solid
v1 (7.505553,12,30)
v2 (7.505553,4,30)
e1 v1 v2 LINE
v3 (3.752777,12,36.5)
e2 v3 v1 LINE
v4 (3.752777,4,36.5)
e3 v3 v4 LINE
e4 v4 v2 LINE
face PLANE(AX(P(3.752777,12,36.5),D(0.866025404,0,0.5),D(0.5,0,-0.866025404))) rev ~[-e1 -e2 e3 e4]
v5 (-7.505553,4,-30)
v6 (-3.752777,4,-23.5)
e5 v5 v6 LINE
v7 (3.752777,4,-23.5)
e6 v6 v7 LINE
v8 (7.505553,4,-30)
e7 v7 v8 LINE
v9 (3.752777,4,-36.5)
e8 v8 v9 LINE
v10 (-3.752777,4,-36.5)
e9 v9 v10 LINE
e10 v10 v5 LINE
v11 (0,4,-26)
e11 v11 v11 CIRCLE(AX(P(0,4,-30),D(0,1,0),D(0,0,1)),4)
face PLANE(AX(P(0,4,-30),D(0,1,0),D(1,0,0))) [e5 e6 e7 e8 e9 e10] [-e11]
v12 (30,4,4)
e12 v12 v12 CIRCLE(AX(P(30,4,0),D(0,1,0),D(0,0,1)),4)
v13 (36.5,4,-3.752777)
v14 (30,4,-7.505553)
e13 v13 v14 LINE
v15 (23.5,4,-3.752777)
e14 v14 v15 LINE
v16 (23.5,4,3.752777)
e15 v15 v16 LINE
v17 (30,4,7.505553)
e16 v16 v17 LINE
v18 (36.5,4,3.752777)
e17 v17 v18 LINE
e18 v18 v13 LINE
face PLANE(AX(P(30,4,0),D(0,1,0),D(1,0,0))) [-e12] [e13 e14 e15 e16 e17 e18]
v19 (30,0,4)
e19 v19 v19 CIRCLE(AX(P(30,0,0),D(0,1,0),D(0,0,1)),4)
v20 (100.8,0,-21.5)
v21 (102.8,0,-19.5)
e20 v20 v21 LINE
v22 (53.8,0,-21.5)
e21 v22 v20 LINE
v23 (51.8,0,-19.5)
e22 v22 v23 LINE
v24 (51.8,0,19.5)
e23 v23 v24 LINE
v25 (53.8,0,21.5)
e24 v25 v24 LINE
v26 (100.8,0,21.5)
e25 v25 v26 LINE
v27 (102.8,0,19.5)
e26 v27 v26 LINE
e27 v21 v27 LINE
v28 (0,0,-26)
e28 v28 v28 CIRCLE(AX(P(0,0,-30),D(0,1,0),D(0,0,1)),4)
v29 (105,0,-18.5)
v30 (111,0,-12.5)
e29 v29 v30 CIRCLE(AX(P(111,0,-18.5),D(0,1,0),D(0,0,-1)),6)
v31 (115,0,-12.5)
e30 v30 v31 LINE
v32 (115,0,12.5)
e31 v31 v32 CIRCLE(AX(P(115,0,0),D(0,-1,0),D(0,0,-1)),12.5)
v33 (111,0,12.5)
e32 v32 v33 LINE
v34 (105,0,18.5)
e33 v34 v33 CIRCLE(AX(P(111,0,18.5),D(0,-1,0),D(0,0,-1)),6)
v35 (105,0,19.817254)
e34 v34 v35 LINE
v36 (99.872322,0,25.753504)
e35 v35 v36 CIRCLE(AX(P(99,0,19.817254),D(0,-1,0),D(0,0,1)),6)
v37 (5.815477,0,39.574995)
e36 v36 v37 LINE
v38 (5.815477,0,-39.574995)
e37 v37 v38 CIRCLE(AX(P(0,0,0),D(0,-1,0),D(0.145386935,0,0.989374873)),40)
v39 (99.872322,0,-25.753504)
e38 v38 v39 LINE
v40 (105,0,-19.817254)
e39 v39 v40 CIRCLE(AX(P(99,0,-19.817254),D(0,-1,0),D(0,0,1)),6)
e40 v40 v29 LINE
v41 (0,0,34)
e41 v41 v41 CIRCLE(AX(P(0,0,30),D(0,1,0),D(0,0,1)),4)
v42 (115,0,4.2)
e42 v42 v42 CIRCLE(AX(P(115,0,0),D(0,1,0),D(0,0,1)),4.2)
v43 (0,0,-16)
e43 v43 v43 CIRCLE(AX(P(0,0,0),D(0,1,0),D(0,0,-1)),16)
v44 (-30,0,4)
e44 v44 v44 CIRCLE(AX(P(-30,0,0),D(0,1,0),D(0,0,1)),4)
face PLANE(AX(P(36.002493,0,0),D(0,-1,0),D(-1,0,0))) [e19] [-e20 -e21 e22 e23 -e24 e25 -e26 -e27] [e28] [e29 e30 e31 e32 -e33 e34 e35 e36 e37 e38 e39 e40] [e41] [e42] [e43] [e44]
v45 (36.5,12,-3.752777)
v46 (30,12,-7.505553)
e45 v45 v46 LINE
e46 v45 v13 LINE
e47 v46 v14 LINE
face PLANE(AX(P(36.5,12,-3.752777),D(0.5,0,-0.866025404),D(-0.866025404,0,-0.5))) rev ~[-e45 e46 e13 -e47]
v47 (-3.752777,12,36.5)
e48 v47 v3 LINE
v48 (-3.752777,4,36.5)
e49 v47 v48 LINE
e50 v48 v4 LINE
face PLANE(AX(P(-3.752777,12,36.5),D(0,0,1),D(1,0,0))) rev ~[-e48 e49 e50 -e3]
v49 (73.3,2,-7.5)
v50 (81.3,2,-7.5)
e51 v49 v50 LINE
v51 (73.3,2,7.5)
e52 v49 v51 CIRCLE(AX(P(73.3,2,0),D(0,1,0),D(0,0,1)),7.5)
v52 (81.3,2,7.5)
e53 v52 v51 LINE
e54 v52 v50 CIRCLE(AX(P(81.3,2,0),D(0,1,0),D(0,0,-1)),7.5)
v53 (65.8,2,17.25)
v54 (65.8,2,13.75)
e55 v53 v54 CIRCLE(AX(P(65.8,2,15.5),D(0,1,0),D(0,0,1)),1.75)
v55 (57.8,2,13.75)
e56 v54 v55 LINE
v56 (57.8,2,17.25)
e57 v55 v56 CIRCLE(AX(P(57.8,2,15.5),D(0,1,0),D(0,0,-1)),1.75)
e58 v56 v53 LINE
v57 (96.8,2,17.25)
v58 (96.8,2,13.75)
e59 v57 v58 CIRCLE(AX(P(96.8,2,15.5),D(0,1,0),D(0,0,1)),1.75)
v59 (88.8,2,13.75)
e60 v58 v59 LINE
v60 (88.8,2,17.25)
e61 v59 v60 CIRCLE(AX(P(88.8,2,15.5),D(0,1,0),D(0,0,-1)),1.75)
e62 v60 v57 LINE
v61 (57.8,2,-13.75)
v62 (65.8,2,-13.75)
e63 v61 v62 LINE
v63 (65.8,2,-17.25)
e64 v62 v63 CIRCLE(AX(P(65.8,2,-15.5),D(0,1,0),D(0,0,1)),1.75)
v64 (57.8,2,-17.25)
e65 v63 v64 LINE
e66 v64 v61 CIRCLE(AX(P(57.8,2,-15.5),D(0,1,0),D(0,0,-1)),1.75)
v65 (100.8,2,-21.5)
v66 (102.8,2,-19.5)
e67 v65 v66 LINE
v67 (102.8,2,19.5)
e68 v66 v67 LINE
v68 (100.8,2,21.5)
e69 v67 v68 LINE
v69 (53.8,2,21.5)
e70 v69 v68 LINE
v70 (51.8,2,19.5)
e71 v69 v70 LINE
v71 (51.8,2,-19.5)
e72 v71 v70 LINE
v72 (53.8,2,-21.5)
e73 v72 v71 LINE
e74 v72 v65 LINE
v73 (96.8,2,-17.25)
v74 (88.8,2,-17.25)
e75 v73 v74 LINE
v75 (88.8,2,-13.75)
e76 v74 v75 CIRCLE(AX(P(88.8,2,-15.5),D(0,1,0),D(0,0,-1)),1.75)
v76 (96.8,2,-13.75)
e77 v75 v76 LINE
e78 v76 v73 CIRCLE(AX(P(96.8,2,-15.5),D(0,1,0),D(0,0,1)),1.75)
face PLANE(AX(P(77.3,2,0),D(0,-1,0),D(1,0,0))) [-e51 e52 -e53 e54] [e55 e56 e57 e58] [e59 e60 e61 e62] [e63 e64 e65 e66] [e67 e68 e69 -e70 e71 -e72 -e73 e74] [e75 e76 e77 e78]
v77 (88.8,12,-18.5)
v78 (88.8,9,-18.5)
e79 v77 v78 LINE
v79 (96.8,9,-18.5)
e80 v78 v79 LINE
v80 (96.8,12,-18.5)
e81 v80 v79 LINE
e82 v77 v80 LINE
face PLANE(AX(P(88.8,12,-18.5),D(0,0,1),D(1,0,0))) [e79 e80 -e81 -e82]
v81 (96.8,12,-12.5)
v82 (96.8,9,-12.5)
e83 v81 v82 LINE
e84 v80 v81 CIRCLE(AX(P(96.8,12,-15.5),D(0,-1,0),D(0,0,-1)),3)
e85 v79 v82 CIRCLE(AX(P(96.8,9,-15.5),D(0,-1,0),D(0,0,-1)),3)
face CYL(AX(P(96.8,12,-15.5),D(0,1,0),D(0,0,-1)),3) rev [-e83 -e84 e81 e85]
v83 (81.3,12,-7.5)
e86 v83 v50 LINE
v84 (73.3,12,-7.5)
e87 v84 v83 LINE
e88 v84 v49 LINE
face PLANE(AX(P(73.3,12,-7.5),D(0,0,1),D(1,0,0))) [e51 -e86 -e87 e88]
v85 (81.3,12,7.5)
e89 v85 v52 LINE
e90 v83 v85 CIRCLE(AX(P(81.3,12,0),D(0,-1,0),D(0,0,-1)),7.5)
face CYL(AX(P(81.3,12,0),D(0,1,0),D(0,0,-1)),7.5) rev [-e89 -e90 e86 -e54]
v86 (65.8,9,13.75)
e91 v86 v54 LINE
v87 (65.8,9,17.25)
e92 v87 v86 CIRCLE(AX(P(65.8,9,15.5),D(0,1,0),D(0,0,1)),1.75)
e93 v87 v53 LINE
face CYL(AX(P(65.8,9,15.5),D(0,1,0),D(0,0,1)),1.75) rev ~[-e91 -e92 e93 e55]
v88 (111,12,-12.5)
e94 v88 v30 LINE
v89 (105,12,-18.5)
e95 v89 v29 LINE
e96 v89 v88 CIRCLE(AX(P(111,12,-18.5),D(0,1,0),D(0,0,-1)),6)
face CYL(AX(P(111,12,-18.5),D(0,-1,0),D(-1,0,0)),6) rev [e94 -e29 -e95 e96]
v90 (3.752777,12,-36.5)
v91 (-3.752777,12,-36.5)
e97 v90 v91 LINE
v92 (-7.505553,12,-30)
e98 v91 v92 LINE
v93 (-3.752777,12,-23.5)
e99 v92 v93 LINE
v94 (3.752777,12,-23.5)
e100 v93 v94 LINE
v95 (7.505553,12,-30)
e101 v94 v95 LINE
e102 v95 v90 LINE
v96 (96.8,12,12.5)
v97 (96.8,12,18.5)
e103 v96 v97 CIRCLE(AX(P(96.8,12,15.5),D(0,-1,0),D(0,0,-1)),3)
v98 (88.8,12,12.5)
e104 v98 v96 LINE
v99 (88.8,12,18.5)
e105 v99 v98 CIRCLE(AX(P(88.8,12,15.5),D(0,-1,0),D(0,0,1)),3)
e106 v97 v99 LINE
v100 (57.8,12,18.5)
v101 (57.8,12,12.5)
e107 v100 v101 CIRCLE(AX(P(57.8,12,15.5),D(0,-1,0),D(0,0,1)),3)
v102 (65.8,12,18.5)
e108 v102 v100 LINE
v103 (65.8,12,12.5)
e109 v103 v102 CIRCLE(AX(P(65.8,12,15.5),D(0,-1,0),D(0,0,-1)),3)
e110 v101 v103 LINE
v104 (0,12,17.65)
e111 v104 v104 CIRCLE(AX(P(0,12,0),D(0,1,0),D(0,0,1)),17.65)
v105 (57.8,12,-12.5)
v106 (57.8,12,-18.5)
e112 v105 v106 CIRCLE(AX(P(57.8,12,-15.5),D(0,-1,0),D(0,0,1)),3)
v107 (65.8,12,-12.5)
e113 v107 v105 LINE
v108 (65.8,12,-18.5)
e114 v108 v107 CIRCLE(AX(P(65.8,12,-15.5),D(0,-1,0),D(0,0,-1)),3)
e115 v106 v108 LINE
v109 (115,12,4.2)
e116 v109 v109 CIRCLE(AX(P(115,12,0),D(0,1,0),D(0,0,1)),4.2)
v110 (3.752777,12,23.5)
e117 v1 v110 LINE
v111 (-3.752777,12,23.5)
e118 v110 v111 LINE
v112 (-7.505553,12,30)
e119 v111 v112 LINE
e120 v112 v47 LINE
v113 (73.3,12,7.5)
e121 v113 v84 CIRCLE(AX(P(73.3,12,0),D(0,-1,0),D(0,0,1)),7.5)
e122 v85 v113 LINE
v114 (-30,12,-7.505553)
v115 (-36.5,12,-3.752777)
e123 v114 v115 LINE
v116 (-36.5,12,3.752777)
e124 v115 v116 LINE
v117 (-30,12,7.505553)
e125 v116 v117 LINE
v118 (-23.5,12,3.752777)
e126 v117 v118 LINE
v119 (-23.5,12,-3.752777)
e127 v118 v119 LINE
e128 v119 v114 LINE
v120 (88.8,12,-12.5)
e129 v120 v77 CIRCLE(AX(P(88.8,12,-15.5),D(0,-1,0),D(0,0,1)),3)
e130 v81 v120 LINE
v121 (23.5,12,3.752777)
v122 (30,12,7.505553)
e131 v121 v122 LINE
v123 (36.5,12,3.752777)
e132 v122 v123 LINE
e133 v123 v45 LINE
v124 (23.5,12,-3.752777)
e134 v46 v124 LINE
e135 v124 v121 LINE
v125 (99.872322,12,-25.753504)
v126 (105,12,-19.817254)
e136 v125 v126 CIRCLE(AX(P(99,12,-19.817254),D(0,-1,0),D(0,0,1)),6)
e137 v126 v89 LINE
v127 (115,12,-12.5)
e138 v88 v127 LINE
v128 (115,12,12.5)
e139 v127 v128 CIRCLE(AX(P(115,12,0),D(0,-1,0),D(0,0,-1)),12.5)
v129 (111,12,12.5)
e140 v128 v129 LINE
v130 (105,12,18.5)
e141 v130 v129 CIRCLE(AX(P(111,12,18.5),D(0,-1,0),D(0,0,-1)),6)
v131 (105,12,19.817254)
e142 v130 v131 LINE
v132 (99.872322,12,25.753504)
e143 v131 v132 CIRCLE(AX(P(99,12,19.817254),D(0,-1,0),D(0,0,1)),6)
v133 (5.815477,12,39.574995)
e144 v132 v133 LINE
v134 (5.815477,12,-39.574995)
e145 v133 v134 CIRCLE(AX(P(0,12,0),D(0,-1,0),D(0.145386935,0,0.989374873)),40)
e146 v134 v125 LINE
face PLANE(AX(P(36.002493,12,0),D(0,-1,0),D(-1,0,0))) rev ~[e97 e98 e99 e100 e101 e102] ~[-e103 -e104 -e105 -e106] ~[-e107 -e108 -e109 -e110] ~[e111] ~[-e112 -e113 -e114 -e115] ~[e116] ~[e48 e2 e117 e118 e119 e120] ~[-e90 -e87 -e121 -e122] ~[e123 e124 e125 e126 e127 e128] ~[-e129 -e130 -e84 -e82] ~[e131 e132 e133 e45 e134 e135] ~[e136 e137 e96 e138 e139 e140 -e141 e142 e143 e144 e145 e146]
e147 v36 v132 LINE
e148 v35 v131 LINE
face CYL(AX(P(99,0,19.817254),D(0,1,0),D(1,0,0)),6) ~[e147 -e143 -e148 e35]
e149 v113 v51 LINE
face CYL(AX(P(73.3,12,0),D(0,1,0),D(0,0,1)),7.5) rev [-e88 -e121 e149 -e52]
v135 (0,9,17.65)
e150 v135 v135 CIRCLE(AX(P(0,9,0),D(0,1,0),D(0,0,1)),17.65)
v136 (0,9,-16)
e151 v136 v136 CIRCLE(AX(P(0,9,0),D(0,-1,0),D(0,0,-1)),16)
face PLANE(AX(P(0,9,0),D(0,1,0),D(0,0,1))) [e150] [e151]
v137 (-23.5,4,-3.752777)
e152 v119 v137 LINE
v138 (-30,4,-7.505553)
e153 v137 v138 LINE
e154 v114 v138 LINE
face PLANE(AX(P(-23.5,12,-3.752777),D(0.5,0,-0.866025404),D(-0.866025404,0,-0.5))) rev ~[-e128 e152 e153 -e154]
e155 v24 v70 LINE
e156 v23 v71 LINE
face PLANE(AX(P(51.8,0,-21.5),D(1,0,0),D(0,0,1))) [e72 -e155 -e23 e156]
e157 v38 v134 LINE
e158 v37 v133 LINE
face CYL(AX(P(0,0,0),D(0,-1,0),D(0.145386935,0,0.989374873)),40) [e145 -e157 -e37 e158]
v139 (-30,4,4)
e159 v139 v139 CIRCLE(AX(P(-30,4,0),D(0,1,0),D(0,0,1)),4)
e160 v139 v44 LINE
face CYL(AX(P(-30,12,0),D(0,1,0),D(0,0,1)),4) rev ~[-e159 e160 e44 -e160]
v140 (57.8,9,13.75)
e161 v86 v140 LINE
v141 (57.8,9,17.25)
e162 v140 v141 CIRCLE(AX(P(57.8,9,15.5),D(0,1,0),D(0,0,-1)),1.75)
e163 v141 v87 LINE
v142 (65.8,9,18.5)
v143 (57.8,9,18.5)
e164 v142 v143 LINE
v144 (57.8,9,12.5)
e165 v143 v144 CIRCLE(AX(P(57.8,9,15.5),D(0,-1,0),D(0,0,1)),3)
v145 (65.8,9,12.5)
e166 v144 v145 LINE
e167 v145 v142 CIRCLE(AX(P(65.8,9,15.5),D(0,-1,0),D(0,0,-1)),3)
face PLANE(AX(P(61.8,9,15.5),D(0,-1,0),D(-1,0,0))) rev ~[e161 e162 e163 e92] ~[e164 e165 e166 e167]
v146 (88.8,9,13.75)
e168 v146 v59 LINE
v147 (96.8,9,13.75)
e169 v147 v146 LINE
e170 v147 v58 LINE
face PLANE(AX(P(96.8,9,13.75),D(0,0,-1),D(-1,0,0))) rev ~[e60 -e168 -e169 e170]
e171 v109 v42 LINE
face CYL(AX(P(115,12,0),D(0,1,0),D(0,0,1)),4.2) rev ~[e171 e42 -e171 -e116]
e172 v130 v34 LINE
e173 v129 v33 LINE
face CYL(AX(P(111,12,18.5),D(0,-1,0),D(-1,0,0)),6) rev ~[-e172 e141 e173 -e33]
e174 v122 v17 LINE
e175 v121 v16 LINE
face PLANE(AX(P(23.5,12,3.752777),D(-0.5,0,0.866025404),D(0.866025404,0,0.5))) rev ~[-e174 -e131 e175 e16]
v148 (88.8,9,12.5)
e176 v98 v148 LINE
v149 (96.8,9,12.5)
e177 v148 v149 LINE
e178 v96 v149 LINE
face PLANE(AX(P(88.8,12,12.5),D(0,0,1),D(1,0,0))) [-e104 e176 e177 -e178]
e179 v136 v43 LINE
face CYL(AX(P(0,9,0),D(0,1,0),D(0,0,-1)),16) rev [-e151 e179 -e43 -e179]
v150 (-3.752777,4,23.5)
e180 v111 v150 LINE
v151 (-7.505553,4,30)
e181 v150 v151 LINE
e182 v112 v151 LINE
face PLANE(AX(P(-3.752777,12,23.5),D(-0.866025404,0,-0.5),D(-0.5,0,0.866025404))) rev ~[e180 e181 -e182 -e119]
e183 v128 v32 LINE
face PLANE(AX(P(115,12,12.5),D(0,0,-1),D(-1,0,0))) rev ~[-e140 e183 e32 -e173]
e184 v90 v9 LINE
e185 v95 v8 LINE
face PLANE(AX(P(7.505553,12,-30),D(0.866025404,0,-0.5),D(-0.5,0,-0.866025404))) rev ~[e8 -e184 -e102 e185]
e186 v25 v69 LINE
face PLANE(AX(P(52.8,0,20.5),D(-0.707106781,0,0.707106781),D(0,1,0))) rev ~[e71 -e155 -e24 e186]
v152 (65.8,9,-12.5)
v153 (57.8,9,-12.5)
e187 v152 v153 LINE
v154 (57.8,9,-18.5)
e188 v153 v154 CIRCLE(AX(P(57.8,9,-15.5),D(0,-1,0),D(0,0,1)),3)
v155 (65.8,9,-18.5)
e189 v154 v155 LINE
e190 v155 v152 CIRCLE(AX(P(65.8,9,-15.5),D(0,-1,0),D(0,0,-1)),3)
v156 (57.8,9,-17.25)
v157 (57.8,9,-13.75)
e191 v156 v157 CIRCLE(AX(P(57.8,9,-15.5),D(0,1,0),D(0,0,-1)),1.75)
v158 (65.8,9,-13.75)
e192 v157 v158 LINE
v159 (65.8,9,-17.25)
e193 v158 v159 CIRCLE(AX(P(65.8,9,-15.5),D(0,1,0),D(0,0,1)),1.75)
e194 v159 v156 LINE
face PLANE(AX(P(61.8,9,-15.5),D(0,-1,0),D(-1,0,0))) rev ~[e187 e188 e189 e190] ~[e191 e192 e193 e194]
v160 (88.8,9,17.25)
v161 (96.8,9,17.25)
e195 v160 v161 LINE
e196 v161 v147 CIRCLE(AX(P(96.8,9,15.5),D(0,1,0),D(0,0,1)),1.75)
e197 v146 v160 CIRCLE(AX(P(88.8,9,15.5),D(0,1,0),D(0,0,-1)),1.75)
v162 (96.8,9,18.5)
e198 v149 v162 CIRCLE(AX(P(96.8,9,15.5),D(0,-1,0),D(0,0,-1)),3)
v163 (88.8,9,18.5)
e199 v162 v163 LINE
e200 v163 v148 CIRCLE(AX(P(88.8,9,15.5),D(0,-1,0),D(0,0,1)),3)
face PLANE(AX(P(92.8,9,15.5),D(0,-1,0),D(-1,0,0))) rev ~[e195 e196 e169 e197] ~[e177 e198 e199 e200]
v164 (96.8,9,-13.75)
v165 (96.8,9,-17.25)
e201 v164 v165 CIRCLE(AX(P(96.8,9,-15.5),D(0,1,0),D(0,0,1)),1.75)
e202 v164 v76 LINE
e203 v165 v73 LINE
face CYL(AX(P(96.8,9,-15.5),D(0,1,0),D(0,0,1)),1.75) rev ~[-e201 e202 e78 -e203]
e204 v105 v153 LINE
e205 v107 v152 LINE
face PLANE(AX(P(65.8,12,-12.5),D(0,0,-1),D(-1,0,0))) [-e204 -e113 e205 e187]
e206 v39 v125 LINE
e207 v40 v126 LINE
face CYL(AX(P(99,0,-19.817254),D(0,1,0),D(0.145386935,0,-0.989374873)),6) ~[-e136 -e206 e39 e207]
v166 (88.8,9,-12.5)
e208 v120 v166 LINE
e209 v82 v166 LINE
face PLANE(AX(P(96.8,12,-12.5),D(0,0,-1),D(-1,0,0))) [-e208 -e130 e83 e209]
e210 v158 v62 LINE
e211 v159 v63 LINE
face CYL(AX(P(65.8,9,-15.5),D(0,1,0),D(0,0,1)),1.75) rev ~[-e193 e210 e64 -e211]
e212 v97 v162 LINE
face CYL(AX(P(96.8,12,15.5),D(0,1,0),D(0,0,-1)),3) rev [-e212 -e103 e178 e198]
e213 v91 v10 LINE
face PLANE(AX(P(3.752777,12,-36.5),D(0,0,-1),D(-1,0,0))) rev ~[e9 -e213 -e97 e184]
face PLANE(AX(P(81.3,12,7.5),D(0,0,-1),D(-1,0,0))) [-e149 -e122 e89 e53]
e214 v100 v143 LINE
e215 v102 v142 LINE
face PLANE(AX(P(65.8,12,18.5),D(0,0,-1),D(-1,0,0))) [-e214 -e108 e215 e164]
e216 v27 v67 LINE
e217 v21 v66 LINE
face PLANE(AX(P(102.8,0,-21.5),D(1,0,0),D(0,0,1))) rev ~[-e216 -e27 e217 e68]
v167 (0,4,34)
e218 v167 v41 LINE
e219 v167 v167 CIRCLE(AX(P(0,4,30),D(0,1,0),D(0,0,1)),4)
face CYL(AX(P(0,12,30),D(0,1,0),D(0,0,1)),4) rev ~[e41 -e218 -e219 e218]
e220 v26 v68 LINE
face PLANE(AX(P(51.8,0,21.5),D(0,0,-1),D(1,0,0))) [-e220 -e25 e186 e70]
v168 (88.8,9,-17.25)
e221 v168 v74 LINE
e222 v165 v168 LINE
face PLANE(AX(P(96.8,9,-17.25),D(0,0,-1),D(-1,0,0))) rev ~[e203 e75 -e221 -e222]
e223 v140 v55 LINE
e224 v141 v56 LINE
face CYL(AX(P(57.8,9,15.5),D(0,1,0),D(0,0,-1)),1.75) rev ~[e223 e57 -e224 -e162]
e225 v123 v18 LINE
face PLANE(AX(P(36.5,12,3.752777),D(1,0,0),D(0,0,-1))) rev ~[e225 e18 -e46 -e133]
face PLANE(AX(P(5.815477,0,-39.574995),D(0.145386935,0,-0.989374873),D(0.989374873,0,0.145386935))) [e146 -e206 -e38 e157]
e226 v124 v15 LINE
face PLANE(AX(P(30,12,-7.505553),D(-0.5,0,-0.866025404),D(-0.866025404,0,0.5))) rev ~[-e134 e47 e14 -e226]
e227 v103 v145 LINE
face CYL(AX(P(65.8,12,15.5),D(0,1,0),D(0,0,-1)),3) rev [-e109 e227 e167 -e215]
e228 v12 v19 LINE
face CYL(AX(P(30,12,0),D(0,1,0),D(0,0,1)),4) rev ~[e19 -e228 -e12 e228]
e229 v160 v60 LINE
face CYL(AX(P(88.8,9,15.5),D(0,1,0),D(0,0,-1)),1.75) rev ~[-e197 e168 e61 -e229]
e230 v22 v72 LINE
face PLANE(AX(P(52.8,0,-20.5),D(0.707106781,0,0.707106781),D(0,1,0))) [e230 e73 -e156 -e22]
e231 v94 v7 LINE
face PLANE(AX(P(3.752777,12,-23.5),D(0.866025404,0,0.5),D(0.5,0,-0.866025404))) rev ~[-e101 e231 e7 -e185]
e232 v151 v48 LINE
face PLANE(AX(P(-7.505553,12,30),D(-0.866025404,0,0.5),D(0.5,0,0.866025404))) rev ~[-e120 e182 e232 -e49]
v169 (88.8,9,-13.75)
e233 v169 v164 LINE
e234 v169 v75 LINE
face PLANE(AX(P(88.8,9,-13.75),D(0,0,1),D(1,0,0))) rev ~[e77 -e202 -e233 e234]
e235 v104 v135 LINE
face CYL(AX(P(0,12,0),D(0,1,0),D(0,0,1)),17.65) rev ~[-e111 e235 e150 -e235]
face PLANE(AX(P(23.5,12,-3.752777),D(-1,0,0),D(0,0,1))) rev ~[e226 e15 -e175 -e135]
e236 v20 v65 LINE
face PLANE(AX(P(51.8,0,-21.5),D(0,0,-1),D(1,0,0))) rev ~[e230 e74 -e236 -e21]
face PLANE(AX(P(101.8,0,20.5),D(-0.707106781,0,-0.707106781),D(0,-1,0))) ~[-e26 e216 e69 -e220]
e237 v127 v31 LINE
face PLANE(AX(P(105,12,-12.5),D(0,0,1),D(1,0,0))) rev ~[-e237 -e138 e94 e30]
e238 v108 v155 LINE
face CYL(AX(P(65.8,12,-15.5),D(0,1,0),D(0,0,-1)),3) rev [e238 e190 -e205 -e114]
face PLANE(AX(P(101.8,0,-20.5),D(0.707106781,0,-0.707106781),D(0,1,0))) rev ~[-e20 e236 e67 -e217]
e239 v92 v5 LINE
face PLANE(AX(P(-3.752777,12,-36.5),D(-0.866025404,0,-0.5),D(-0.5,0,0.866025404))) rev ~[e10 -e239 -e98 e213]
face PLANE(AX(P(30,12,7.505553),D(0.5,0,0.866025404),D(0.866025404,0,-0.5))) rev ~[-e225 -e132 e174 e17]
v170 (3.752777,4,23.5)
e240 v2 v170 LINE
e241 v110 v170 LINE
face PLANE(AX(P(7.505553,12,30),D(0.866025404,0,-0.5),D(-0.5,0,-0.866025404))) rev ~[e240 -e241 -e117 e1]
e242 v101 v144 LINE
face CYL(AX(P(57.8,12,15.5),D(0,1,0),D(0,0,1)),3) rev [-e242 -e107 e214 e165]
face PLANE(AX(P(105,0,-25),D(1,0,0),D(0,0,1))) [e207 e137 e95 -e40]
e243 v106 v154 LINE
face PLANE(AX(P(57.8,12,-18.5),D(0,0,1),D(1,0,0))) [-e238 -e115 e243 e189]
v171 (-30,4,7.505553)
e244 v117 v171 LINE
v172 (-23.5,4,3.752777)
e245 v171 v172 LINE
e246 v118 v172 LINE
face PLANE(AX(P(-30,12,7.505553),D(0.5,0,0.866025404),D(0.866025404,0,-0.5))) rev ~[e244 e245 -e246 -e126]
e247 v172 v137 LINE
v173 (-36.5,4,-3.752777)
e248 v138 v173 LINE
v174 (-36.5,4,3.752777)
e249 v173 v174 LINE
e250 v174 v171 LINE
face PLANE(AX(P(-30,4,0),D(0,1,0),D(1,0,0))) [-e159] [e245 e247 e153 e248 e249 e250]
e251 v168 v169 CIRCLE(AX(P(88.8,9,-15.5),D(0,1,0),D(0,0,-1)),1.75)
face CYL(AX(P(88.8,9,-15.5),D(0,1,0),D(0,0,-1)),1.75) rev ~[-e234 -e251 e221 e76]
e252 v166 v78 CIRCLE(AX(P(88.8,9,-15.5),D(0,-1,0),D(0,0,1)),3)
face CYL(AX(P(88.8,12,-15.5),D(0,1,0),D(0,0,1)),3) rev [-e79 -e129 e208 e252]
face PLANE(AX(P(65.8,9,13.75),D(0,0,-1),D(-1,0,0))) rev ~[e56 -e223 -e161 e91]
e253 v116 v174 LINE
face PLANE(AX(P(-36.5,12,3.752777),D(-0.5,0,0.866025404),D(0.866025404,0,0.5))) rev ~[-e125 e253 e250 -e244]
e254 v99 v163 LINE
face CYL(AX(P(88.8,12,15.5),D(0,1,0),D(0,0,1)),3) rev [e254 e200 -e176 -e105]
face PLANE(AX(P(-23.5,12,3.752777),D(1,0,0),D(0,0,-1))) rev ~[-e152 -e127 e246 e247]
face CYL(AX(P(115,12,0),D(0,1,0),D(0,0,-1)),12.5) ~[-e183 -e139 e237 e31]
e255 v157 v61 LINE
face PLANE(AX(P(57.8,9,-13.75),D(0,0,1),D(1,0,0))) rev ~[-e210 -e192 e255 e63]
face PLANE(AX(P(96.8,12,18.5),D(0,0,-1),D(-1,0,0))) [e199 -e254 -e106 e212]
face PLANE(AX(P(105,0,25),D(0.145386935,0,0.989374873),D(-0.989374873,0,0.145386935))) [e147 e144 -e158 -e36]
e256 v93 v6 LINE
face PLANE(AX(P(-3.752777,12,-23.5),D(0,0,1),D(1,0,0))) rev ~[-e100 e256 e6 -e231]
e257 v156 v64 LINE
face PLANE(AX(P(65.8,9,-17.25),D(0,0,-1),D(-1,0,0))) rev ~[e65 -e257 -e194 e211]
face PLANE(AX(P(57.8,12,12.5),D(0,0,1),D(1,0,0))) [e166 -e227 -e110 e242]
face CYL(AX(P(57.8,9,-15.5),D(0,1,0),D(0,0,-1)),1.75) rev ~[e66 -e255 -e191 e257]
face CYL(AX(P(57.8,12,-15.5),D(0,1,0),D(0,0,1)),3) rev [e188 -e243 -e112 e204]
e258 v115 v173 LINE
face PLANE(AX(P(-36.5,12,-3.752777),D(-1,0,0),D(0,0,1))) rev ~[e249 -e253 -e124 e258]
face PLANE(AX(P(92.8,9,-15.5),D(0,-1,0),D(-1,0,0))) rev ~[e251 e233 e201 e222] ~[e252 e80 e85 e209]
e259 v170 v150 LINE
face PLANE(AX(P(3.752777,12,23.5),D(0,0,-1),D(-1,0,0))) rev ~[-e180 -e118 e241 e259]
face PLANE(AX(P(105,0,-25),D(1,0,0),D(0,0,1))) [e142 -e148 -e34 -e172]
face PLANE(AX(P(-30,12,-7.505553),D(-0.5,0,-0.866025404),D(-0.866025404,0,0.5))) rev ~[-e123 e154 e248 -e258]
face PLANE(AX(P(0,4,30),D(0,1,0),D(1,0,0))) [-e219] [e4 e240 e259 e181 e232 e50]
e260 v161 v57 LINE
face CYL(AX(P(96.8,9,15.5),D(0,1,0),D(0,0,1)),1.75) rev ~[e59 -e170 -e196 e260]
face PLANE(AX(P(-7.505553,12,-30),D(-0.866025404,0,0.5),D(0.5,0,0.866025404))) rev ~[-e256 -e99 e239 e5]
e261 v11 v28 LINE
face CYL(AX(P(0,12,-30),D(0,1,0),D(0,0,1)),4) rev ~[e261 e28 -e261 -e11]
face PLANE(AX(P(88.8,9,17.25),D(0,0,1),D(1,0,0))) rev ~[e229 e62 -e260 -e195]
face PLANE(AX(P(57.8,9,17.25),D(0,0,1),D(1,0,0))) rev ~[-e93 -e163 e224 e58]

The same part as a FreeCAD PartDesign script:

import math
import FreeCAD as App
import Part
import Sketcher

V = App.Vector
Q = App.Units.Quantity


def edges_at(feature, points):
    """Names of the edges that pass closest to the given points."""
    edges = feature.Shape.Edges
    near = lambda p: min(range(len(edges)), key=lambda i: edges[i].distToShape(Part.Vertex(*p))[0])
    return sorted({f"Edge{near(p) + 1}" for p in points})

doc = App.newDocument("Part")
body = doc.addObject("PartDesign::Body", "Body")

# Sketch on XZ plane
sketch1 = doc.addObject("Sketcher::SketchObject", "Sketch")
body.addObject(sketch1)
sketch1.AttachmentSupport = (doc.XZ_Plane, [""])
sketch1.MapMode = "FlatFace"
sketch1.addGeometry(Part.LineSegment(V(105, -25, 0), V(6, -40, 0)), False)
sketch1.addGeometry(Part.ArcOfCircle(Part.Circle(V(0, 0, 0), V(0, 0, 1), 40), math.radians(82), math.radians(278)), False)
sketch1.addGeometry(Part.LineSegment(V(6, 40, 0), V(105, 25, 0)), False)
sketch1.addGeometry(Part.LineSegment(V(105, 25, 0), V(105, -25, 0)), False)
sketch1.addGeometry(Part.Circle(V(0, 0, 0), V(0, 0, 1), 10), False)
sketch1.addConstraint(Sketcher.Constraint("Tangent", 0, 2, 1, 2))
sketch1.addConstraint(Sketcher.Constraint("Tangent", 1, 1, 2, 1))
sketch1.addConstraint(Sketcher.Constraint("Coincident", 2, 2, 3, 1))
sketch1.addConstraint(Sketcher.Constraint("Coincident", 3, 2, 0, 1))
sketch1.addConstraint(Sketcher.Constraint("Vertical", 3))
sketch1.addConstraint(Sketcher.Constraint("Coincident", 1, 3, -1, 1))
sketch1.addConstraint(Sketcher.Constraint("Coincident", 4, 3, -1, 1))
sketch1.addConstraint(Sketcher.Constraint("Vertical", 0, 2, 1, 1))
sketch1.addConstraint(Sketcher.Constraint("Diameter", 4, 20.0))
sketch1.addConstraint(Sketcher.Constraint("Radius", 1, 40.0))
sketch1.addConstraint(Sketcher.Constraint("DistanceY", 3, 2, 3, 1, 50.0))
sketch1.addConstraint(Sketcher.Constraint("DistanceX", -1, 1, 2, 2, 105.0))
pad1 = doc.addObject("PartDesign::Pad", "Pad")
body.addObject(pad1)
pad1.Profile = sketch1
pad1.Length = 12
pad1.Reversed = True

# Sketch on XZ plane
sketch2 = doc.addObject("Sketcher::SketchObject", "Sketch001")
body.addObject(sketch2)
sketch2.AttachmentSupport = (doc.XZ_Plane, [""])
sketch2.MapMode = "FlatFace"
sketch2.AttachmentOffset = App.Placement(V(0, 0, -12), App.Rotation())
sketch2.addGeometry(Part.Circle(V(0, 0, 0), V(0, 0, 1), 18), False)
sketch2.addConstraint(Sketcher.Constraint("Coincident", 0, 3, -1, 1))
sketch2.addConstraint(Sketcher.Constraint("Diameter", 0, 35.3))
pocket1 = doc.addObject("PartDesign::Pocket", "Pocket")
body.addObject(pocket1)
pocket1.Profile = sketch2
pocket1.Length = 3
pocket1.Reversed = True

# Sketch on XZ plane
sketch3 = doc.addObject("Sketcher::SketchObject", "Sketch002")
body.addObject(sketch3)
sketch3.AttachmentSupport = (doc.XZ_Plane, [""])
sketch3.MapMode = "FlatFace"
sketch3.AttachmentOffset = App.Placement(V(0, 0, -12), App.Rotation())
sketch3.addGeometry(Part.LineSegment(V(81, -8, 0), V(73, -8, 0)), False)
sketch3.addGeometry(Part.ArcOfCircle(Part.Circle(V(73, 0, 0), V(0, 0, 1), 8), math.radians(90), math.radians(270)), False)
sketch3.addGeometry(Part.LineSegment(V(73, 8, 0), V(81, 8, 0)), False)
sketch3.addGeometry(Part.ArcOfCircle(Part.Circle(V(81, 0, 0), V(0, 0, 1), 8), math.radians(-90), math.radians(90)), False)
sketch3.addConstraint(Sketcher.Constraint("Tangent", 0, 2, 1, 2))
sketch3.addConstraint(Sketcher.Constraint("Tangent", 1, 1, 2, 1))
sketch3.addConstraint(Sketcher.Constraint("Tangent", 2, 2, 3, 2))
sketch3.addConstraint(Sketcher.Constraint("Tangent", 3, 1, 0, 1))
sketch3.addConstraint(Sketcher.Constraint("Horizontal", 0))
sketch3.addConstraint(Sketcher.Constraint("Horizontal", 2))
sketch3.addConstraint(Sketcher.Constraint("PointOnObject", 1, 3, -1))
sketch3.addConstraint(Sketcher.Constraint("Radius", 1, 7.5))
sketch3.addConstraint(Sketcher.Constraint("DistanceX", 0, 2, 0, 1, 8.0))
sketch3.addConstraint(Sketcher.Constraint("DistanceX", -1, 1, 1, 3, 73.3))
pocket2 = doc.addObject("PartDesign::Pocket", "Pocket001")
body.addObject(pocket2)
pocket2.Profile = sketch3
pocket2.Length = 12
pocket2.Reversed = True

# Sketch on XZ plane
sketch4 = doc.addObject("Sketcher::SketchObject", "Sketch003")
body.addObject(sketch4)
sketch4.AttachmentSupport = (doc.XZ_Plane, [""])
sketch4.MapMode = "FlatFace"
sketch4.AttachmentOffset = App.Placement(V(0, 0, -12), App.Rotation())
sketch4.addGeometry(Part.Circle(V(30, 0, 0), V(0, 0, 1), 4), False)
sketch4.addGeometry(Part.Circle(V(0, 30, 0), V(0, 0, 1), 4), False)
sketch4.addGeometry(Part.Circle(V(-30, 0, 0), V(0, 0, 1), 4), False)
sketch4.addGeometry(Part.Circle(V(0, -30, 0), V(0, 0, 1), 4), False)
sketch4.addConstraint(Sketcher.Constraint("Equal", 0, 1))
sketch4.addConstraint(Sketcher.Constraint("Equal", 1, 2))
sketch4.addConstraint(Sketcher.Constraint("Equal", 2, 3))
sketch4.addConstraint(Sketcher.Constraint("Symmetric", 0, 3, 2, 3, -1, 1))
sketch4.addConstraint(Sketcher.Constraint("Symmetric", 1, 3, 3, 3, -1, 1))
sketch4.addConstraint(Sketcher.Constraint("PointOnObject", 0, 3, -1))
sketch4.addConstraint(Sketcher.Constraint("PointOnObject", 1, 3, -2))
sketch4.addConstraint(Sketcher.Constraint("Diameter", 0, 8.0))
sketch4.addConstraint(Sketcher.Constraint("DistanceX", -1, 1, 0, 3, 30.0))
sketch4.addConstraint(Sketcher.Constraint("DistanceY", -1, 1, 1, 3, 30.0))
pocket3 = doc.addObject("PartDesign::Pocket", "Pocket002")
body.addObject(pocket3)
pocket3.Profile = sketch4
pocket3.Length = 12
pocket3.Reversed = True

# Sketch on XZ plane
sketch5 = doc.addObject("Sketcher::SketchObject", "Sketch004")
body.addObject(sketch5)
sketch5.AttachmentSupport = (doc.XZ_Plane, [""])
sketch5.MapMode = "FlatFace"
sketch5.AttachmentOffset = App.Placement(V(0, 0, -9), App.Rotation())
sketch5.addGeometry(Part.Circle(V(0, 0, 0), V(0, 0, 1), 16), False)
sketch5.addConstraint(Sketcher.Constraint("Coincident", 0, 3, -1, 1))
sketch5.addConstraint(Sketcher.Constraint("Diameter", 0, 32.0))
pocket4 = doc.addObject("PartDesign::Pocket", "Pocket003")
body.addObject(pocket4)
pocket4.Profile = sketch5
pocket4.Type = "ThroughAll"
pocket4.Reversed = True

# Sketch on XZ plane
sketch6 = doc.addObject("Sketcher::SketchObject", "Sketch005")
body.addObject(sketch6)
sketch6.AttachmentSupport = (doc.XZ_Plane, [""])
sketch6.MapMode = "FlatFace"
sketch6.addGeometry(Part.LineSegment(V(52, 22, 0), V(52, -22, 0)), False)
sketch6.addGeometry(Part.LineSegment(V(52, -22, 0), V(103, -22, 0)), False)
sketch6.addGeometry(Part.LineSegment(V(103, -22, 0), V(103, 22, 0)), False)
sketch6.addGeometry(Part.LineSegment(V(103, 22, 0), V(52, 22, 0)), False)
sketch6.addConstraint(Sketcher.Constraint("Coincident", 0, 2, 1, 1))
sketch6.addConstraint(Sketcher.Constraint("Coincident", 1, 2, 2, 1))
sketch6.addConstraint(Sketcher.Constraint("Coincident", 2, 2, 3, 1))
sketch6.addConstraint(Sketcher.Constraint("Coincident", 3, 2, 0, 1))
sketch6.addConstraint(Sketcher.Constraint("Vertical", 0))
sketch6.addConstraint(Sketcher.Constraint("Horizontal", 1))
sketch6.addConstraint(Sketcher.Constraint("Vertical", 2))
sketch6.addConstraint(Sketcher.Constraint("Horizontal", 3))
sketch6.addConstraint(Sketcher.Constraint("DistanceX", 1, 1, 1, 2, 51.0))
sketch6.addConstraint(Sketcher.Constraint("DistanceY", 0, 2, 0, 1, 43.0))
sketch6.addConstraint(Sketcher.Constraint("DistanceX", -1, 1, 0, 2, 51.8))
sketch6.addConstraint(Sketcher.Constraint("DistanceY", 0, 2, -1, 1, 21.5))
pocket5 = doc.addObject("PartDesign::Pocket", "Pocket004")
body.addObject(pocket5)
pocket5.Profile = sketch6
pocket5.Length = 2
doc.recompute()

chamfer = doc.addObject("PartDesign::Chamfer", "Chamfer")
body.addObject(chamfer)
chamfer.Base = (pocket5, edges_at(pocket5, [
    (102.8, 1, 21.5),
    (102.8, 1, -21.5),
    (51.8, 1, -21.5),
    (51.8, 1, 21.5),
]))
chamfer.Size = 2

# Sketch on XZ plane
sketch7 = doc.addObject("Sketcher::SketchObject", "Sketch006")
body.addObject(sketch7)
sketch7.AttachmentSupport = (doc.XZ_Plane, [""])
sketch7.MapMode = "FlatFace"
sketch7.AttachmentOffset = App.Placement(V(0, 0, -12), App.Rotation())
sketch7.addGeometry(Part.LineSegment(V(-8, -30, 0), V(-4, -24, 0)), False)
sketch7.addGeometry(Part.LineSegment(V(-4, -24, 0), V(4, -24, 0)), False)
sketch7.addGeometry(Part.LineSegment(V(4, -24, 0), V(8, -30, 0)), False)
sketch7.addGeometry(Part.LineSegment(V(8, -30, 0), V(4, -36, 0)), False)
sketch7.addGeometry(Part.LineSegment(V(4, -36, 0), V(-4, -36, 0)), False)
sketch7.addGeometry(Part.LineSegment(V(-4, -36, 0), V(-8, -30, 0)), False)
sketch7.addGeometry(Part.LineSegment(V(-30, 8, 0), V(-24, 4, 0)), False)
sketch7.addGeometry(Part.LineSegment(V(-24, 4, 0), V(-24, -4, 0)), False)
sketch7.addGeometry(Part.LineSegment(V(-24, -4, 0), V(-30, -8, 0)), False)
sketch7.addGeometry(Part.LineSegment(V(-30, -8, 0), V(-36, -4, 0)), False)
sketch7.addGeometry(Part.LineSegment(V(-36, -4, 0), V(-36, 4, 0)), False)
sketch7.addGeometry(Part.LineSegment(V(-36, 4, 0), V(-30, 8, 0)), False)
sketch7.addGeometry(Part.LineSegment(V(30, -8, 0), V(24, -4, 0)), False)
sketch7.addGeometry(Part.LineSegment(V(24, -4, 0), V(24, 4, 0)), False)
sketch7.addGeometry(Part.LineSegment(V(24, 4, 0), V(30, 8, 0)), False)
sketch7.addGeometry(Part.LineSegment(V(30, 8, 0), V(36, 4, 0)), False)
sketch7.addGeometry(Part.LineSegment(V(36, 4, 0), V(36, -4, 0)), False)
sketch7.addGeometry(Part.LineSegment(V(36, -4, 0), V(30, -8, 0)), False)
sketch7.addGeometry(Part.LineSegment(V(8, 30, 0), V(4, 24, 0)), False)
sketch7.addGeometry(Part.LineSegment(V(4, 24, 0), V(-4, 24, 0)), False)
sketch7.addGeometry(Part.LineSegment(V(-4, 24, 0), V(-8, 30, 0)), False)
sketch7.addGeometry(Part.LineSegment(V(-8, 30, 0), V(-4, 36, 0)), False)
sketch7.addGeometry(Part.LineSegment(V(-4, 36, 0), V(4, 36, 0)), False)
sketch7.addGeometry(Part.LineSegment(V(4, 36, 0), V(8, 30, 0)), False)
sketch7.addConstraint(Sketcher.Constraint("Coincident", 0, 2, 1, 1))
sketch7.addConstraint(Sketcher.Constraint("Coincident", 1, 2, 2, 1))
sketch7.addConstraint(Sketcher.Constraint("Coincident", 2, 2, 3, 1))
sketch7.addConstraint(Sketcher.Constraint("Coincident", 3, 2, 4, 1))
sketch7.addConstraint(Sketcher.Constraint("Coincident", 4, 2, 5, 1))
sketch7.addConstraint(Sketcher.Constraint("Coincident", 5, 2, 0, 1))
sketch7.addConstraint(Sketcher.Constraint("Coincident", 6, 2, 7, 1))
sketch7.addConstraint(Sketcher.Constraint("Coincident", 7, 2, 8, 1))
sketch7.addConstraint(Sketcher.Constraint("Coincident", 8, 2, 9, 1))
sketch7.addConstraint(Sketcher.Constraint("Coincident", 9, 2, 10, 1))
sketch7.addConstraint(Sketcher.Constraint("Coincident", 10, 2, 11, 1))
sketch7.addConstraint(Sketcher.Constraint("Coincident", 11, 2, 6, 1))
sketch7.addConstraint(Sketcher.Constraint("Coincident", 12, 2, 13, 1))
sketch7.addConstraint(Sketcher.Constraint("Coincident", 13, 2, 14, 1))
sketch7.addConstraint(Sketcher.Constraint("Coincident", 14, 2, 15, 1))
sketch7.addConstraint(Sketcher.Constraint("Coincident", 15, 2, 16, 1))
sketch7.addConstraint(Sketcher.Constraint("Coincident", 16, 2, 17, 1))
sketch7.addConstraint(Sketcher.Constraint("Coincident", 17, 2, 12, 1))
sketch7.addConstraint(Sketcher.Constraint("Coincident", 18, 2, 19, 1))
sketch7.addConstraint(Sketcher.Constraint("Coincident", 19, 2, 20, 1))
sketch7.addConstraint(Sketcher.Constraint("Coincident", 20, 2, 21, 1))
sketch7.addConstraint(Sketcher.Constraint("Coincident", 21, 2, 22, 1))
sketch7.addConstraint(Sketcher.Constraint("Coincident", 22, 2, 23, 1))
sketch7.addConstraint(Sketcher.Constraint("Coincident", 23, 2, 18, 1))
sketch7.addConstraint(Sketcher.Constraint("Horizontal", 1))
sketch7.addConstraint(Sketcher.Constraint("Horizontal", 4))
sketch7.addConstraint(Sketcher.Constraint("Vertical", 7))
sketch7.addConstraint(Sketcher.Constraint("Vertical", 10))
sketch7.addConstraint(Sketcher.Constraint("Vertical", 13))
sketch7.addConstraint(Sketcher.Constraint("Vertical", 16))
sketch7.addConstraint(Sketcher.Constraint("Horizontal", 19))
sketch7.addConstraint(Sketcher.Constraint("Horizontal", 22))
sketch7.addConstraint(Sketcher.Constraint("Symmetric", 6, 2, 12, 2, -1, 1))
sketch7.addConstraint(Sketcher.Constraint("Symmetric", 8, 2, 14, 2, -1, 1))
sketch7.addConstraint(Sketcher.Constraint("Symmetric", 9, 2, 15, 2, -1, 1))
sketch7.addConstraint(Sketcher.Constraint("Symmetric", 11, 2, 17, 2, -1, 1))
sketch7.addConstraint(Sketcher.Constraint("Symmetric", 0, 2, 18, 2, -1, 1))
sketch7.addConstraint(Sketcher.Constraint("Symmetric", 2, 2, 20, 2, -1, 1))
sketch7.addConstraint(Sketcher.Constraint("Symmetric", 3, 2, 21, 2, -1, 1))
sketch7.addConstraint(Sketcher.Constraint("Symmetric", 5, 2, 23, 2, -1, 1))
sketch7.addConstraint(Sketcher.Constraint("Symmetric", 2, 2, 5, 2, -2))
sketch7.addConstraint(Sketcher.Constraint("Symmetric", 11, 2, 14, 2, -2))
sketch7.addConstraint(Sketcher.Constraint("Parallel", 0, 3))
sketch7.addConstraint(Sketcher.Constraint("Parallel", 2, 5))
sketch7.addConstraint(Sketcher.Constraint("Perpendicular", 3, 6))
sketch7.addConstraint(Sketcher.Constraint("Perpendicular", 5, 8))
sketch7.addConstraint(Sketcher.Constraint("Parallel", 6, 9))
sketch7.addConstraint(Sketcher.Constraint("Parallel", 8, 11))
sketch7.addConstraint(Sketcher.Constraint("Parallel", 11, 14))
sketch7.addConstraint(Sketcher.Constraint("Parallel", 14, 17))
sketch7.addConstraint(Sketcher.Constraint("Perpendicular", 17, 20))
sketch7.addConstraint(Sketcher.Constraint("Parallel", 20, 23))
sketch7.addConstraint(Sketcher.Constraint("Horizontal", 7, 2, 9, 2))
sketch7.addConstraint(Sketcher.Constraint("Horizontal", 6, 2, 10, 2))
sketch7.addConstraint(Sketcher.Constraint("Vertical", 1, 2, 3, 2))
sketch7.addConstraint(Sketcher.Constraint("Equal", 22, 7))
sketch7.addConstraint(Sketcher.Constraint("Equal", 5, 6))
sketch7.addConstraint(Sketcher.Constraint("Angle", 0, Q("60 deg")))
sketch7.addConstraint(Sketcher.Constraint("DistanceY", 2, 2, -1, 1, 30.0))
sketch7.addConstraint(Sketcher.Constraint("DistanceX", 8, 2, -1, 1, 30.0))
sketch7.addConstraint(Sketcher.Constraint("DistanceY", 3, 2, 1, 2, 13.0))
sketch7.addConstraint(Sketcher.Constraint("DistanceX", 1, 1, 1, 2, 7.505554))
pocket6 = doc.addObject("PartDesign::Pocket", "Pocket005")
body.addObject(pocket6)
pocket6.Profile = sketch7
pocket6.Length = 8
pocket6.Reversed = True

# Sketch on XZ plane
sketch8 = doc.addObject("Sketcher::SketchObject", "Sketch007")
body.addObject(sketch8)
sketch8.AttachmentSupport = (doc.XZ_Plane, [""])
sketch8.MapMode = "FlatFace"
sketch8.AttachmentOffset = App.Placement(V(0, 0, -12), App.Rotation())
sketch8.addGeometry(Part.LineSegment(V(65.8, -18.5, 0), V(57.8, -18.5, 0)), False)
sketch8.addGeometry(Part.ArcOfCircle(Part.Circle(V(57.8, -15.5, 0), V(0, 0, 1), 3), math.radians(90), math.radians(270)), False)
sketch8.addGeometry(Part.LineSegment(V(57.8, -12.5, 0), V(65.8, -12.5, 0)), False)
sketch8.addGeometry(Part.ArcOfCircle(Part.Circle(V(65.8, -15.5, 0), V(0, 0, 1), 3), math.radians(-90), math.radians(90)), False)
sketch8.addGeometry(Part.LineSegment(V(96.8, -18.5, 0), V(88.8, -18.5, 0)), False)
sketch8.addGeometry(Part.ArcOfCircle(Part.Circle(V(88.8, -15.5, 0), V(0, 0, 1), 3), math.radians(90), math.radians(270)), False)
sketch8.addGeometry(Part.LineSegment(V(88.8, -12.5, 0), V(96.8, -12.5, 0)), False)
sketch8.addGeometry(Part.ArcOfCircle(Part.Circle(V(96.8, -15.5, 0), V(0, 0, 1), 3), math.radians(-90), math.radians(90)), False)
sketch8.addGeometry(Part.LineSegment(V(65.8, 12.5, 0), V(57.8, 12.5, 0)), False)
sketch8.addGeometry(Part.ArcOfCircle(Part.Circle(V(57.8, 15.5, 0), V(0, 0, 1), 3), math.radians(90), math.radians(270)), False)
sketch8.addGeometry(Part.LineSegment(V(57.8, 18.5, 0), V(65.8, 18.5, 0)), False)
sketch8.addGeometry(Part.ArcOfCircle(Part.Circle(V(65.8, 15.5, 0), V(0, 0, 1), 3), math.radians(-90), math.radians(90)), False)
sketch8.addGeometry(Part.LineSegment(V(96.8, 12.5, 0), V(88.8, 12.5, 0)), False)
sketch8.addGeometry(Part.ArcOfCircle(Part.Circle(V(88.8, 15.5, 0), V(0, 0, 1), 3), math.radians(90), math.radians(270)), False)
sketch8.addGeometry(Part.LineSegment(V(88.8, 18.5, 0), V(96.8, 18.5, 0)), False)
sketch8.addGeometry(Part.ArcOfCircle(Part.Circle(V(96.8, 15.5, 0), V(0, 0, 1), 3), math.radians(-90), math.radians(90)), False)
sketch8.addConstraint(Sketcher.Constraint("Tangent", 0, 2, 1, 2))
sketch8.addConstraint(Sketcher.Constraint("Tangent", 1, 1, 2, 1))
sketch8.addConstraint(Sketcher.Constraint("Tangent", 2, 2, 3, 2))
sketch8.addConstraint(Sketcher.Constraint("Tangent", 3, 1, 0, 1))
sketch8.addConstraint(Sketcher.Constraint("Tangent", 4, 2, 5, 2))
sketch8.addConstraint(Sketcher.Constraint("Tangent", 5, 1, 6, 1))
sketch8.addConstraint(Sketcher.Constraint("Tangent", 6, 2, 7, 2))
sketch8.addConstraint(Sketcher.Constraint("Tangent", 7, 1, 4, 1))
sketch8.addConstraint(Sketcher.Constraint("Tangent", 8, 2, 9, 2))
sketch8.addConstraint(Sketcher.Constraint("Tangent", 9, 1, 10, 1))
sketch8.addConstraint(Sketcher.Constraint("Tangent", 10, 2, 11, 2))
sketch8.addConstraint(Sketcher.Constraint("Tangent", 11, 1, 8, 1))
sketch8.addConstraint(Sketcher.Constraint("Tangent", 12, 2, 13, 2))
sketch8.addConstraint(Sketcher.Constraint("Tangent", 13, 1, 14, 1))
sketch8.addConstraint(Sketcher.Constraint("Tangent", 14, 2, 15, 2))
sketch8.addConstraint(Sketcher.Constraint("Tangent", 15, 1, 12, 1))
sketch8.addConstraint(Sketcher.Constraint("Horizontal", 0))
sketch8.addConstraint(Sketcher.Constraint("Horizontal", 2))
sketch8.addConstraint(Sketcher.Constraint("Horizontal", 4))
sketch8.addConstraint(Sketcher.Constraint("Horizontal", 6))
sketch8.addConstraint(Sketcher.Constraint("Horizontal", 8))
sketch8.addConstraint(Sketcher.Constraint("Horizontal", 10))
sketch8.addConstraint(Sketcher.Constraint("Horizontal", 12))
sketch8.addConstraint(Sketcher.Constraint("Horizontal", 14))
sketch8.addConstraint(Sketcher.Constraint("Equal", 3, 5))
sketch8.addConstraint(Sketcher.Constraint("Equal", 7, 9))
sketch8.addConstraint(Sketcher.Constraint("Equal", 11, 13))
sketch8.addConstraint(Sketcher.Constraint("Symmetric", 1, 3, 9, 3, -1))
sketch8.addConstraint(Sketcher.Constraint("Symmetric", 5, 3, 13, 3, -1))
sketch8.addConstraint(Sketcher.Constraint("Horizontal", 3, 3, 5, 3))
sketch8.addConstraint(Sketcher.Constraint("Vertical", 3, 3, 11, 3))
sketch8.addConstraint(Sketcher.Constraint("Vertical", 7, 3, 15, 3))
sketch8.addConstraint(Sketcher.Constraint("Equal", 2, 4))
sketch8.addConstraint(Sketcher.Constraint("Radius", 1, 3.0))
sketch8.addConstraint(Sketcher.Constraint("DistanceX", 0, 2, 0, 1, 8.0))
sketch8.addConstraint(Sketcher.Constraint("DistanceX", 3, 3, 5, 3, 23.0))
sketch8.addConstraint(Sketcher.Constraint("DistanceY", 1, 3, 9, 3, 31.0))
sketch8.addConstraint(Sketcher.Constraint("DistanceX", -1, 1, 1, 3, 57.8))
pocket7 = doc.addObject("PartDesign::Pocket", "Pocket006")
body.addObject(pocket7)
pocket7.Profile = sketch8
pocket7.Length = 3
pocket7.Reversed = True

# Sketch on XZ plane
sketch9 = doc.addObject("Sketcher::SketchObject", "Sketch008")
body.addObject(sketch9)
sketch9.AttachmentSupport = (doc.XZ_Plane, [""])
sketch9.MapMode = "FlatFace"
sketch9.AttachmentOffset = App.Placement(V(0, 0, -9), App.Rotation())
sketch9.addGeometry(Part.LineSegment(V(57.8, -13.8, 0), V(65.8, -13.8, 0)), False)
sketch9.addGeometry(Part.ArcOfCircle(Part.Circle(V(65.8, -15.5, 0), V(0, 0, 1), 1.8), math.radians(-90), math.radians(90)), False)
sketch9.addGeometry(Part.LineSegment(V(65.8, -17.2, 0), V(57.8, -17.2, 0)), False)
sketch9.addGeometry(Part.ArcOfCircle(Part.Circle(V(57.8, -15.5, 0), V(0, 0, 1), 1.8), math.radians(90), math.radians(270)), False)
sketch9.addGeometry(Part.LineSegment(V(88.8, -13.8, 0), V(96.8, -13.8, 0)), False)
sketch9.addGeometry(Part.ArcOfCircle(Part.Circle(V(96.8, -15.5, 0), V(0, 0, 1), 1.8), math.radians(-90), math.radians(90)), False)
sketch9.addGeometry(Part.LineSegment(V(96.8, -17.2, 0), V(88.8, -17.2, 0)), False)
sketch9.addGeometry(Part.ArcOfCircle(Part.Circle(V(88.8, -15.5, 0), V(0, 0, 1), 1.8), math.radians(90), math.radians(270)), False)
sketch9.addGeometry(Part.LineSegment(V(57.8, 17.2, 0), V(65.8, 17.2, 0)), False)
sketch9.addGeometry(Part.ArcOfCircle(Part.Circle(V(65.8, 15.5, 0), V(0, 0, 1), 1.8), math.radians(-90), math.radians(90)), False)
sketch9.addGeometry(Part.LineSegment(V(65.8, 13.8, 0), V(57.8, 13.8, 0)), False)
sketch9.addGeometry(Part.ArcOfCircle(Part.Circle(V(57.8, 15.5, 0), V(0, 0, 1), 1.8), math.radians(90), math.radians(270)), False)
sketch9.addGeometry(Part.LineSegment(V(88.8, 17.2, 0), V(96.8, 17.2, 0)), False)
sketch9.addGeometry(Part.ArcOfCircle(Part.Circle(V(96.8, 15.5, 0), V(0, 0, 1), 1.8), math.radians(-90), math.radians(90)), False)
sketch9.addGeometry(Part.LineSegment(V(96.8, 13.8, 0), V(88.8, 13.8, 0)), False)
sketch9.addGeometry(Part.ArcOfCircle(Part.Circle(V(88.8, 15.5, 0), V(0, 0, 1), 1.8), math.radians(90), math.radians(270)), False)
sketch9.addConstraint(Sketcher.Constraint("Tangent", 0, 2, 1, 2))
sketch9.addConstraint(Sketcher.Constraint("Tangent", 1, 1, 2, 1))
sketch9.addConstraint(Sketcher.Constraint("Tangent", 2, 2, 3, 2))
sketch9.addConstraint(Sketcher.Constraint("Tangent", 3, 1, 0, 1))
sketch9.addConstraint(Sketcher.Constraint("Tangent", 4, 2, 5, 2))
sketch9.addConstraint(Sketcher.Constraint("Tangent", 5, 1, 6, 1))
sketch9.addConstraint(Sketcher.Constraint("Tangent", 6, 2, 7, 2))
sketch9.addConstraint(Sketcher.Constraint("Tangent", 7, 1, 4, 1))
sketch9.addConstraint(Sketcher.Constraint("Tangent", 8, 2, 9, 2))
sketch9.addConstraint(Sketcher.Constraint("Tangent", 9, 1, 10, 1))
sketch9.addConstraint(Sketcher.Constraint("Tangent", 10, 2, 11, 2))
sketch9.addConstraint(Sketcher.Constraint("Tangent", 11, 1, 8, 1))
sketch9.addConstraint(Sketcher.Constraint("Tangent", 12, 2, 13, 2))
sketch9.addConstraint(Sketcher.Constraint("Tangent", 13, 1, 14, 1))
sketch9.addConstraint(Sketcher.Constraint("Tangent", 14, 2, 15, 2))
sketch9.addConstraint(Sketcher.Constraint("Tangent", 15, 1, 12, 1))
sketch9.addConstraint(Sketcher.Constraint("Horizontal", 0))
sketch9.addConstraint(Sketcher.Constraint("Horizontal", 2))
sketch9.addConstraint(Sketcher.Constraint("Horizontal", 4))
sketch9.addConstraint(Sketcher.Constraint("Horizontal", 6))
sketch9.addConstraint(Sketcher.Constraint("Horizontal", 8))
sketch9.addConstraint(Sketcher.Constraint("Horizontal", 10))
sketch9.addConstraint(Sketcher.Constraint("Horizontal", 12))
sketch9.addConstraint(Sketcher.Constraint("Horizontal", 14))
sketch9.addConstraint(Sketcher.Constraint("Equal", 3, 5))
sketch9.addConstraint(Sketcher.Constraint("Equal", 7, 9))
sketch9.addConstraint(Sketcher.Constraint("Equal", 11, 13))
sketch9.addConstraint(Sketcher.Constraint("Symmetric", 1, 3, 9, 3, -1))
sketch9.addConstraint(Sketcher.Constraint("Symmetric", 5, 3, 13, 3, -1))
sketch9.addConstraint(Sketcher.Constraint("Horizontal", 3, 3, 5, 3))
sketch9.addConstraint(Sketcher.Constraint("Vertical", 3, 3, 11, 3))
sketch9.addConstraint(Sketcher.Constraint("Vertical", 7, 3, 15, 3))
sketch9.addConstraint(Sketcher.Constraint("Equal", 2, 4))
sketch9.addConstraint(Sketcher.Constraint("DistanceX", 0, 1, 0, 2, 8.0))
sketch9.addConstraint(Sketcher.Constraint("Radius", 1, 1.75))
sketch9.addConstraint(Sketcher.Constraint("DistanceX", 1, 3, 5, 3, 31.0))
sketch9.addConstraint(Sketcher.Constraint("DistanceY", 1, 3, 9, 3, 31.0))
sketch9.addConstraint(Sketcher.Constraint("DistanceX", -1, 1, 1, 3, 65.8))
pocket8 = doc.addObject("PartDesign::Pocket", "Pocket007")
body.addObject(pocket8)
pocket8.Profile = sketch9
pocket8.Length = 7
pocket8.Reversed = True

# Sketch on XZ plane
sketch10 = doc.addObject("Sketcher::SketchObject", "Sketch009")
body.addObject(sketch10)
sketch10.AttachmentSupport = (doc.XZ_Plane, [""])
sketch10.MapMode = "FlatFace"
sketch10.AttachmentOffset = App.Placement(V(0, 0, -12), App.Rotation())
sketch10.addGeometry(Part.LineSegment(V(105, -12.5, 0), V(105, 12.5, 0)), False)
sketch10.addGeometry(Part.LineSegment(V(105, 12.5, 0), V(115, 12.5, 0)), False)
sketch10.addGeometry(Part.ArcOfCircle(Part.Circle(V(115, 0, 0), V(0, 0, 1), 12.5), math.radians(-90), math.radians(90)), False)
sketch10.addGeometry(Part.LineSegment(V(115, -12.5, 0), V(105, -12.5, 0)), False)
sketch10.addGeometry(Part.Circle(V(115, 0, 0), V(0, 0, 1), 4.2), False)
sketch10.addConstraint(Sketcher.Constraint("Coincident", 0, 2, 1, 1))
sketch10.addConstraint(Sketcher.Constraint("Tangent", 1, 2, 2, 2))
sketch10.addConstraint(Sketcher.Constraint("Tangent", 2, 1, 3, 1))
sketch10.addConstraint(Sketcher.Constraint("Coincident", 3, 2, 0, 1))
sketch10.addConstraint(Sketcher.Constraint("Vertical", 0))
sketch10.addConstraint(Sketcher.Constraint("Horizontal", 1))
sketch10.addConstraint(Sketcher.Constraint("Horizontal", 3))
sketch10.addConstraint(Sketcher.Constraint("Coincident", 4, 3, 2, 3))
sketch10.addConstraint(Sketcher.Constraint("PointOnObject", 2, 3, -1))
sketch10.addConstraint(Sketcher.Constraint("Diameter", 4, 8.4))
sketch10.addConstraint(Sketcher.Constraint("Radius", 2, 12.5))
sketch10.addConstraint(Sketcher.Constraint("DistanceX", 1, 1, 1, 2, 10.0))
sketch10.addConstraint(Sketcher.Constraint("DistanceX", -1, 1, 2, 3, 115.0))
pad2 = doc.addObject("PartDesign::Pad", "Pad001")
body.addObject(pad2)
pad2.Profile = sketch10
pad2.Length = 12
doc.recompute()

fillet = doc.addObject("PartDesign::Fillet", "Fillet")
body.addObject(fillet)
fillet.Base = (pad2, edges_at(pad2, [
    (105, 6, -12.5),
    (105, 6, 12.5),
    (105, 6, -25),
    (105, 6, 25),
]))
fillet.Radius = 6

doc.recompute()
